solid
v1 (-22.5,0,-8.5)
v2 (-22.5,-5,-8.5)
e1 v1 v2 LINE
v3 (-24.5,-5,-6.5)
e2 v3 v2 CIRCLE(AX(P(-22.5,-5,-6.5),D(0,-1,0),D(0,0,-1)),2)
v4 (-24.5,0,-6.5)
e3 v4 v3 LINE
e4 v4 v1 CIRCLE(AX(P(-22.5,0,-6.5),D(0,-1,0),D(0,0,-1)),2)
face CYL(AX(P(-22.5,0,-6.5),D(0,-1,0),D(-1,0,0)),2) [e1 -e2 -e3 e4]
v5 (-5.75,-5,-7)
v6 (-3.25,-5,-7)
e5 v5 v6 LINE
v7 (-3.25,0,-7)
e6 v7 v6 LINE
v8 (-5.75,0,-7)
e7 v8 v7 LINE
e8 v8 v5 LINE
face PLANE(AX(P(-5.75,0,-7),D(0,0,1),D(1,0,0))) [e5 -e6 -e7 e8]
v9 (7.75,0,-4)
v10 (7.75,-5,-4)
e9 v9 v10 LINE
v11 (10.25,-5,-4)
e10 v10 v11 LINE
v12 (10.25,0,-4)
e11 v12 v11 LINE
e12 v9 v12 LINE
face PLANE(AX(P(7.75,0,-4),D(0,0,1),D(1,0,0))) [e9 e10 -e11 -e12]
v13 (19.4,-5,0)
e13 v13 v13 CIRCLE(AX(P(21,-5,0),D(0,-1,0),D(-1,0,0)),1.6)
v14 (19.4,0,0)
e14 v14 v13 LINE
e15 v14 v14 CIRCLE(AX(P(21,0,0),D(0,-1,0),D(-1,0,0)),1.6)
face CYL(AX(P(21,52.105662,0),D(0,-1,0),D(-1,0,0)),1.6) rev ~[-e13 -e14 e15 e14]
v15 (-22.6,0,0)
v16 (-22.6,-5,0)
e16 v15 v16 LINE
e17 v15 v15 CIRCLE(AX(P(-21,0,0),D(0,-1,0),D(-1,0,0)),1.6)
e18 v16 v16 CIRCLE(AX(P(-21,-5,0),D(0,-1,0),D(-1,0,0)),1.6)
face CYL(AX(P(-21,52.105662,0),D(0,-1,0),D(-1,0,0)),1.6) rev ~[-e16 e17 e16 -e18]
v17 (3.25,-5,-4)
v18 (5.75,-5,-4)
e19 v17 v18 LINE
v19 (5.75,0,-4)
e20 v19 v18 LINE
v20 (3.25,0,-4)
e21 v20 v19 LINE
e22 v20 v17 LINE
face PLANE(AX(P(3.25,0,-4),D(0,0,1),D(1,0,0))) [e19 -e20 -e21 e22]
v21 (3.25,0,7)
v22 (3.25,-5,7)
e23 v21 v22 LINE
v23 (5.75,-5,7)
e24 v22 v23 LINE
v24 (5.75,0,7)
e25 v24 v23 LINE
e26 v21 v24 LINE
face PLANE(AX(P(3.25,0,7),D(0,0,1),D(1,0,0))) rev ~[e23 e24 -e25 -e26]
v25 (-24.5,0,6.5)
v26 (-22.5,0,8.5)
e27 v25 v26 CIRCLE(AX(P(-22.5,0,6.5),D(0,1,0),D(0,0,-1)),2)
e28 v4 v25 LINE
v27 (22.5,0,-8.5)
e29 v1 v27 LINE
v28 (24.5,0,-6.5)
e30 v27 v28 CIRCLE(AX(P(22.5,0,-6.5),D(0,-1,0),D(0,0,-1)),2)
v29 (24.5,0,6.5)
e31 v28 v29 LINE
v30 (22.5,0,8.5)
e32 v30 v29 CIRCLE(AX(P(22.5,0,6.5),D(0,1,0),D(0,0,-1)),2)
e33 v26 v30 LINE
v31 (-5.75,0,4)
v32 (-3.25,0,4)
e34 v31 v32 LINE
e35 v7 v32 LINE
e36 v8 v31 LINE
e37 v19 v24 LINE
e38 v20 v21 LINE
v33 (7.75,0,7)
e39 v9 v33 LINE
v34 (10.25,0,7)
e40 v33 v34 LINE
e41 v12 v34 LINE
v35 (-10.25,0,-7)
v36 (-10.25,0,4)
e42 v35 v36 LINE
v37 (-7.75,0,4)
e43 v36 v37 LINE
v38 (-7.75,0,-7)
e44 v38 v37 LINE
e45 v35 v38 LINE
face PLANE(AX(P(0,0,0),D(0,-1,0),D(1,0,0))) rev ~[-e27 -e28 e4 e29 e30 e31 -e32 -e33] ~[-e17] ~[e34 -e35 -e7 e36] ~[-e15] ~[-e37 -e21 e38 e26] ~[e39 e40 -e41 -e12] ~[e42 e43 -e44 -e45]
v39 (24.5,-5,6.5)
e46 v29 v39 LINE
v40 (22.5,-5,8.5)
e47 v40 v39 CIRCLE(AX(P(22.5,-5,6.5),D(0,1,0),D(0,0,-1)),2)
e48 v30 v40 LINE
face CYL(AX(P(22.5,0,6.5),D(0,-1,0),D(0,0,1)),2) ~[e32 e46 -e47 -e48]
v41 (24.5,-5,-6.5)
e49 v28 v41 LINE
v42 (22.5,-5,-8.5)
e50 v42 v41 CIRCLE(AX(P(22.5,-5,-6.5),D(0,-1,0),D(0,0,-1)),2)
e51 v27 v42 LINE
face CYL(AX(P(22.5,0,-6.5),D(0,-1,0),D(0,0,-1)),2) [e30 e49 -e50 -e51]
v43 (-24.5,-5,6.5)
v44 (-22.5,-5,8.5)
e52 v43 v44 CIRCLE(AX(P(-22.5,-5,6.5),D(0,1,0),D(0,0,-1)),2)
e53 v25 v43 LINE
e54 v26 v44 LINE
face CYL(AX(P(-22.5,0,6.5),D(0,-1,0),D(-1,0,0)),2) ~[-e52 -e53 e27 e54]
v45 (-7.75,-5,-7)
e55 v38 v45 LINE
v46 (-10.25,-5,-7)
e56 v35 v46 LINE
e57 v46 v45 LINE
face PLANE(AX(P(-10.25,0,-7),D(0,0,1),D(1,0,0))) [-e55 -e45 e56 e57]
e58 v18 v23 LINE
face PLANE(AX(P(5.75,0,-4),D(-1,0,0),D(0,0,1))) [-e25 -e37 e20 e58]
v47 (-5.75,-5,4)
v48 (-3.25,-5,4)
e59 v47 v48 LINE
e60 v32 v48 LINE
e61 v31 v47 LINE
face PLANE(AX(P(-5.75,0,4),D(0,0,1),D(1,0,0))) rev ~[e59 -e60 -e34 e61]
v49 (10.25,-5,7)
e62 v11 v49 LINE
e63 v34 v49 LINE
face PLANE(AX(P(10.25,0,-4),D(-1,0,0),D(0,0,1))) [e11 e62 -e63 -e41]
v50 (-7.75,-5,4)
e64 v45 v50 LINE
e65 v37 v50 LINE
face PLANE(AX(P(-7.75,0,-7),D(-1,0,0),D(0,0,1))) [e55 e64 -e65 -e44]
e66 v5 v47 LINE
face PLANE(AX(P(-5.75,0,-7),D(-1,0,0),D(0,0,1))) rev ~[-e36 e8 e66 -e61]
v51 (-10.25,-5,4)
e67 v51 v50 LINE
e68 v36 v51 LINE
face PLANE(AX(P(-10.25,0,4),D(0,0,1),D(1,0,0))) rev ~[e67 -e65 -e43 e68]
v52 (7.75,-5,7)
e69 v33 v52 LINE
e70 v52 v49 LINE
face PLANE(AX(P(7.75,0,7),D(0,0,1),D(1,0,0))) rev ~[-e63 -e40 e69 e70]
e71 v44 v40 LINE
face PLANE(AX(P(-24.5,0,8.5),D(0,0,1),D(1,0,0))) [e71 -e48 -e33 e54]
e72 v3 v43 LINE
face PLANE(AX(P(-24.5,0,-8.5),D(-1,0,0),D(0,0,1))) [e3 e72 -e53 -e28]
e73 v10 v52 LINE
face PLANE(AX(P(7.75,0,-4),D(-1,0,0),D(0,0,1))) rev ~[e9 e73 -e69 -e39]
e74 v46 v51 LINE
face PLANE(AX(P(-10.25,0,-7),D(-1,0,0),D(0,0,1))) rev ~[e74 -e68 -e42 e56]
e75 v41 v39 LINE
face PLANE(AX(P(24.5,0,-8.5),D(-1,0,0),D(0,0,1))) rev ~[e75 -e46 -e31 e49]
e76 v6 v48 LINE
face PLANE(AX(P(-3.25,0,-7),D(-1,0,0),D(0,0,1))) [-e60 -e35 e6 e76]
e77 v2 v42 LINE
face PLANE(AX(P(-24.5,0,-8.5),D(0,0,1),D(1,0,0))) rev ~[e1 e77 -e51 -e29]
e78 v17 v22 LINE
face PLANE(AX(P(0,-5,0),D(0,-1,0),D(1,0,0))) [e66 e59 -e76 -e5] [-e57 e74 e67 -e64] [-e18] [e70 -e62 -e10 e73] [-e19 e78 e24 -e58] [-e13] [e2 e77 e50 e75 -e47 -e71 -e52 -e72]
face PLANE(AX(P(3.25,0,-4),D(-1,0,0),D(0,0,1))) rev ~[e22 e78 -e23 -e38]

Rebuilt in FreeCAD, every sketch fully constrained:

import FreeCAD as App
import Part
import Sketcher

V = App.Vector


def edges_at(feature, points):
    """Names of the edges that pass closest to the given points."""
    edges = feature.Shape.Edges
    near = lambda p: min(range(len(edges)), key=lambda i: edges[i].distToShape(Part.Vertex(*p))[0])
    return sorted({f"Edge{near(p) + 1}" for p in points})


def add_polygon(sketch, points):
    """Adds a closed chain of lines whose ends are joined by coincident constraints."""
    first, n = sketch.GeometryCount, len(points)
    for a, b in zip(points, points[1:] + points[:1]):
        sketch.addGeometry(Part.LineSegment(App.Vector(*a, 0), App.Vector(*b, 0)), False)
    for i in range(n):
        sketch.addConstraint(Sketcher.Constraint("Coincident", first + i, 2, first + (i + 1) % n, 1))

doc = App.newDocument("Part")
body = doc.addObject("PartDesign::Body", "Body")

# Sketch on XZ plane
sketch1 = body.newObject("Sketcher::SketchObject", "Sketch")
sketch1.AttachmentSupport = (doc.getObject("XZ_Plane"), [""])
sketch1.MapMode = "FlatFace"
add_polygon(sketch1, [(-24.5, 8.5), (-24.5, -8.5), (24.5, -8.5), (24.5, 8.5)])  # lines 0-3
add_polygon(sketch1, [(-7.75, -7), (-10.25, -7), (-10.25, 4), (-7.75, 4)])  # lines 4-7
add_polygon(sketch1, [(-3.25, -7), (-5.75, -7), (-5.75, 4), (-3.25, 4)])  # lines 8-11
add_polygon(sketch1, [(5.75, -4), (3.25, -4), (3.25, 7), (5.75, 7)])  # lines 12-15
add_polygon(sketch1, [(10.25, -4), (7.75, -4), (7.75, 7), (10.25, 7)])  # lines 16-19
sketch1.addConstraint(Sketcher.Constraint("Vertical", 0))
sketch1.addConstraint(Sketcher.Constraint("Horizontal", 1))
sketch1.addConstraint(Sketcher.Constraint("Vertical", 2))
sketch1.addConstraint(Sketcher.Constraint("Horizontal", 3))
sketch1.addConstraint(Sketcher.Constraint("Horizontal", 4))
sketch1.addConstraint(Sketcher.Constraint("Vertical", 5))
sketch1.addConstraint(Sketcher.Constraint("Horizontal", 6))
sketch1.addConstraint(Sketcher.Constraint("Vertical", 7))
sketch1.addConstraint(Sketcher.Constraint("Horizontal", 8))
sketch1.addConstraint(Sketcher.Constraint("Vertical", 9))
sketch1.addConstraint(Sketcher.Constraint("Horizontal", 10))
sketch1.addConstraint(Sketcher.Constraint("Vertical", 11))
sketch1.addConstraint(Sketcher.Constraint("Horizontal", 12))
sketch1.addConstraint(Sketcher.Constraint("Vertical", 13))
sketch1.addConstraint(Sketcher.Constraint("Horizontal", 14))
sketch1.addConstraint(Sketcher.Constraint("Vertical", 15))
sketch1.addConstraint(Sketcher.Constraint("Horizontal", 16))
sketch1.addConstraint(Sketcher.Constraint("Vertical", 17))
sketch1.addConstraint(Sketcher.Constraint("Horizontal", 18))
sketch1.addConstraint(Sketcher.Constraint("Vertical", 19))
sketch1.addConstraint(Sketcher.Constraint("Symmetric", 0, 2, 2, 2, -1, 1))
sketch1.addConstraint(Sketcher.Constraint("Symmetric", 10, 2, 12, 2, -1, 1))
sketch1.addConstraint(Sketcher.Constraint("Symmetric", 8, 2, 14, 2, -1, 1))
sketch1.addConstraint(Sketcher.Constraint("Symmetric", 6, 2, 16, 2, -1, 1))
sketch1.addConstraint(Sketcher.Constraint("Symmetric", 4, 2, 18, 2, -1, 1))
sketch1.addConstraint(Sketcher.Constraint("Horizontal", 7, 2, 8, 2))
sketch1.addConstraint(Sketcher.Constraint("Horizontal", 6, 2, 9, 2))
sketch1.addConstraint(Sketcher.Constraint("Equal", 6, 8))
sketch1.addConstraint(Sketcher.Constraint("DistanceX", 1, 1, 1, 2, 49.0))
sketch1.addConstraint(Sketcher.Constraint("DistanceY", 0, 2, 0, 1, 17.0))
sketch1.addConstraint(Sketcher.Constraint("DistanceY", 5, 1, 5, 2, 11.0))
sketch1.addConstraint(Sketcher.Constraint("DistanceX", 4, 2, 4, 1, 2.5))
sketch1.addConstraint(Sketcher.Constraint("DistanceY", 4, 2, -1, 1, 7.0))
sketch1.addConstraint(Sketcher.Constraint("DistanceX", 7, 2, 8, 2, 2.0))
sketch1.addConstraint(Sketcher.Constraint("DistanceX", 8, 2, 12, 2, 9.0))
pad1 = body.newObject("PartDesign::Pad", "Pad")
pad1.Profile = sketch1
pad1.Length = 5

# Sketch on XZ plane
sketch2 = body.newObject("Sketcher::SketchObject", "Sketch001")
sketch2.AttachmentSupport = (doc.getObject("XZ_Plane"), [""])
sketch2.MapMode = "FlatFace"
sketch2.addGeometry(Part.Circle(V(-21, 0, 0), V(0, 0, 1), 1.6), False)
sketch2.addGeometry(Part.Circle(V(21, 0, 0), V(0, 0, 1), 1.6), False)
sketch2.addConstraint(Sketcher.Constraint("Equal", 0, 1))
sketch2.addConstraint(Sketcher.Constraint("Symmetric", 0, 3, 1, 3, -1, 1))
sketch2.addConstraint(Sketcher.Constraint("PointOnObject", 0, 3, -1))
sketch2.addConstraint(Sketcher.Constraint("Diameter", 0, 3.2))
sketch2.addConstraint(Sketcher.Constraint("DistanceX", 0, 3, -1, 1, 21.0))
doc.recompute()
hole = body.newObject("PartDesign::Hole", "Hole")
hole.Profile = sketch2
hole.ThreadType = "None"
hole.Diameter = 3.2
hole.DepthType = "ThroughAll"
hole.Reversed = True
doc.recompute()

fillet = body.newObject("PartDesign::Fillet", "Fillet")
fillet.Base = (hole, edges_at(hole, [
    (-24.5, -2.5, 8.5),
    (-24.5, -2.5, -8.5),
    (24.5, -2.5, 8.5),
    (24.5, -2.5, -8.5),
]))
fillet.Radius = 2

doc.recompute()
